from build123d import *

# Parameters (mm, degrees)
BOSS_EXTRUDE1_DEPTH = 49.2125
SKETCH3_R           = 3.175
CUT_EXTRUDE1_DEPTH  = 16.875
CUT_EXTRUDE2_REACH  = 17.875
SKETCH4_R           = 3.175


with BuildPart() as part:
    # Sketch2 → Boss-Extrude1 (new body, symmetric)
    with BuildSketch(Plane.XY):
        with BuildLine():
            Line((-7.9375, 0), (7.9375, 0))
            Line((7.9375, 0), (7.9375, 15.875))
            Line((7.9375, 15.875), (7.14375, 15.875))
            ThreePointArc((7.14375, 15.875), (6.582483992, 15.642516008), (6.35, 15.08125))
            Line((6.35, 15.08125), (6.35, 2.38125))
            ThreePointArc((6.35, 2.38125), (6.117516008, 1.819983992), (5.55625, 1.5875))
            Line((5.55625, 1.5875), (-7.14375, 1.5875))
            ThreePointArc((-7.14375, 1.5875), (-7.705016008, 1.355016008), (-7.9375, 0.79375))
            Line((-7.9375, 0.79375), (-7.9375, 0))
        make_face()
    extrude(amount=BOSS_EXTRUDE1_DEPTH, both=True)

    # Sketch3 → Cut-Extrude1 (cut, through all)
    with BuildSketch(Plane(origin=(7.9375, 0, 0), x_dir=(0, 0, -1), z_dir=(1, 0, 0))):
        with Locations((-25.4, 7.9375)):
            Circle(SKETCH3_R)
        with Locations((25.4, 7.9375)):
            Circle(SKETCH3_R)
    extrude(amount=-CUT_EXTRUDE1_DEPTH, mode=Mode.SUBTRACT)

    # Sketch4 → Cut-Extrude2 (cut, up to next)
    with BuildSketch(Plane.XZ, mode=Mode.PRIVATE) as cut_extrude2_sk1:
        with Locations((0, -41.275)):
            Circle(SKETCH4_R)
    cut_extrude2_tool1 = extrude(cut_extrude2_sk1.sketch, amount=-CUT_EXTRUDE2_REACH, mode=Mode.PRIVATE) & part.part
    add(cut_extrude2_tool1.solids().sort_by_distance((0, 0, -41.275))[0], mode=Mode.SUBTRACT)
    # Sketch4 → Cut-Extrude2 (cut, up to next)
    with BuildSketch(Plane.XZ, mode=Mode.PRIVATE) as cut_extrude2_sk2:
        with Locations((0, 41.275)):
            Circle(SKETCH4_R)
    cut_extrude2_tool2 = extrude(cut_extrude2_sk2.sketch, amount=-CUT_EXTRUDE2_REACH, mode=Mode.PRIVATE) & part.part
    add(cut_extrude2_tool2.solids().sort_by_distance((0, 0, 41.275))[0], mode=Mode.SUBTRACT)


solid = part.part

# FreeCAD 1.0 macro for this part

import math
import FreeCAD as App
import Part
import Sketcher
Q = App.Units.Quantity

doc = App.newDocument("Part")
body = doc.addObject("PartDesign::Body", "Body")

sketch1 = doc.addObject("Sketcher::SketchObject", "Sketch")
body.addObject(sketch1)
sketch1.AttachmentSupport = (doc.XY_Plane, [""])
sketch1.MapMode = "FlatFace"
sketch1.addGeometry([
    Part.LineSegment(App.Vector(-7.9375, 0, 0), App.Vector(7.9375, 0, 0)),
    Part.LineSegment(App.Vector(7.9375, 0, 0), App.Vector(7.9375, 15.875, 0)),
    Part.LineSegment(App.Vector(7.9375, 15.875, 0), App.Vector(7.14375, 15.875, 0)),
    Part.ArcOfCircle(Part.Circle(App.Vector(7.14375, 15.08125, 0), App.Vector(0, 0, 1), 0.79375), math.radians(90), math.radians(180)),
    Part.LineSegment(App.Vector(6.35, 15.08125, 0), App.Vector(6.35, 2.38125, 0)),
    Part.ArcOfCircle(Part.Circle(App.Vector(5.55625, 2.38125, 0), App.Vector(0, 0, 1), 0.79375), math.radians(-90), math.radians(0)),
    Part.LineSegment(App.Vector(5.55625, 1.5875, 0), App.Vector(-7.14375, 1.5875, 0)),
    Part.ArcOfCircle(Part.Circle(App.Vector(-7.14375, 0.79375, 0), App.Vector(0, 0, 1), 0.79375), math.radians(90), math.radians(180)),
    Part.LineSegment(App.Vector(-7.9375, 0.79375, 0), App.Vector(-7.9375, 0, 0)),
], False)
sketch1.addConstraint([
    Sketcher.Constraint("Coincident", 0, 2, 1, 1),
    Sketcher.Constraint("Coincident", 1, 2, 2, 1),
    Sketcher.Constraint("Tangent", 2, 2, 3, 1),
    Sketcher.Constraint("Tangent", 3, 2, 4, 1),
    Sketcher.Constraint("Tangent", 4, 2, 5, 2),
    Sketcher.Constraint("Tangent", 5, 1, 6, 1),
    Sketcher.Constraint("Tangent", 6, 2, 7, 1),
    Sketcher.Constraint("Tangent", 7, 2, 8, 1),
    Sketcher.Constraint("Coincident", 8, 2, 0, 1),
    Sketcher.Constraint("Horizontal", 0),
    Sketcher.Constraint("Vertical", 1),
    Sketcher.Constraint("Horizontal", 2),
    Sketcher.Constraint("Vertical", 4),
    Sketcher.Constraint("Horizontal", 6),
    Sketcher.Constraint("Vertical", 8),
    Sketcher.Constraint("Equal", 3, 5),
    Sketcher.Constraint("Equal", 5, 7),
    Sketcher.Constraint("Symmetric", 0, 2, 8, 2, -1, 1),
    Sketcher.Constraint("Equal", 0, 1),
    Sketcher.Constraint("Equal", 6, 4),
    Sketcher.Constraint("DistanceX", 6, 2, 6, 1, Q("0.5 in")),
    Sketcher.Constraint("Radius", 3, Q("0.03125 in")),
    Sketcher.Constraint("DistanceX", 0, 1, 0, 2, Q("0.625 in")),
])
pad1 = doc.addObject("PartDesign::Pad", "Pad")
body.addObject(pad1)
pad1.Profile = sketch1
pad1.Length = Q("3.875 in")
pad1.Midplane = True

sketch2 = doc.addObject("Sketcher::SketchObject", "Sketch001")
body.addObject(sketch2)
sketch2.AttachmentSupport = (doc.YZ_Plane, [""])
sketch2.MapMode = "FlatFace"
sketch2.AttachmentOffset = App.Placement(App.Vector(0, 0, 0.3125 * 25.4), App.Rotation())
sketch2.addGeometry([
    Part.Circle(App.Vector(7.9375, 25.4, 0), App.Vector(0, 0, 1), 3.175),
    Part.Circle(App.Vector(7.9375, -25.4, 0), App.Vector(0, 0, 1), 3.175),
], False)
sketch2.addConstraint([
    Sketcher.Constraint("Equal", 0, 1),
    Sketcher.Constraint("Symmetric", 0, 3, 1, 3, -1),
    Sketcher.Constraint("Diameter", 0, Q("0.25 in")),
    Sketcher.Constraint("DistanceY", -1, 1, 0, 3, Q("1 in")),
    Sketcher.Constraint("DistanceX", -1, 1, 0, 3, Q("0.3125 in")),
])
pocket1 = doc.addObject("PartDesign::Pocket", "Pocket")
body.addObject(pocket1)
pocket1.Profile = sketch2
pocket1.Type = "ThroughAll"

sketch3 = doc.addObject("Sketcher::SketchObject", "Sketch002")
body.addObject(sketch3)
sketch3.AttachmentSupport = (doc.XZ_Plane, [""])
sketch3.MapMode = "FlatFace"
sketch3.addGeometry(Part.Circle(App.Vector(0, -41.275, 0), App.Vector(0, 0, 1), 3.175), False)
sketch3.addConstraint([
    Sketcher.Constraint("PointOnObject", 0, 3, -2),
    Sketcher.Constraint("Diameter", 0, Q("0.25 in")),
    Sketcher.Constraint("DistanceY", 0, 3, -1, 1, Q("1.625 in")),
])
pocket2 = doc.addObject("PartDesign::Pocket", "Pocket001")
body.addObject(pocket2)
pocket2.Profile = sketch3
pocket2.Type = "UpToFirst"

sketch4 = doc.addObject("Sketcher::SketchObject", "Sketch003")
body.addObject(sketch4)
sketch4.AttachmentSupport = (doc.XZ_Plane, [""])
sketch4.MapMode = "FlatFace"
sketch4.addGeometry(Part.Circle(App.Vector(0, 41.275, 0), App.Vector(0, 0, 1), 3.175), False)
sketch4.addConstraint([
    Sketcher.Constraint("PointOnObject", 0, 3, -2),
    Sketcher.Constraint("Diameter", 0, Q("0.25 in")),
    Sketcher.Constraint("DistanceY", -1, 1, 0, 3, Q("1.625 in")),
])
pocket3 = doc.addObject("PartDesign::Pocket", "Pocket002")
body.addObject(pocket3)
pocket3.Profile = sketch4
pocket3.Type = "UpToFirst"

doc.recompute()
